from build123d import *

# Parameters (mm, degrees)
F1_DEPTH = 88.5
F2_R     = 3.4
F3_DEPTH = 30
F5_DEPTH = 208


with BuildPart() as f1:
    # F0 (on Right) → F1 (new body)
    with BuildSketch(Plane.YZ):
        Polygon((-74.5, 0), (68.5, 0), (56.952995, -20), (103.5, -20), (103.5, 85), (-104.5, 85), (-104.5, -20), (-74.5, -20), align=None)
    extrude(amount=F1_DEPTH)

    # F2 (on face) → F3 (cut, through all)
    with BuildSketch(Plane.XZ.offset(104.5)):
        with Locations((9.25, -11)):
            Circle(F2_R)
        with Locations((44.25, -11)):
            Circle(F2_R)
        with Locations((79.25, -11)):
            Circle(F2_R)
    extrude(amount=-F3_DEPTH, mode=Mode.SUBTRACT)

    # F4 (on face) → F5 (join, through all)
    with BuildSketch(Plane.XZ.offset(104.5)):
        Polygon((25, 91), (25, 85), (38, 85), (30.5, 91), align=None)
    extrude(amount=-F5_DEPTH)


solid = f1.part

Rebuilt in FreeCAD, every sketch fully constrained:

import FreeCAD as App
import Part
import Sketcher
Q = App.Units.Quantity


def add_polygon(sketch, points):
    """Adds a closed chain of lines whose ends are joined by coincident constraints."""
    first, n = sketch.GeometryCount, len(points)
    for a, b in zip(points, points[1:] + points[:1]):
        sketch.addGeometry(Part.LineSegment(App.Vector(*a, 0), App.Vector(*b, 0)), False)
    for i in range(n):
        sketch.addConstraint(Sketcher.Constraint("Coincident", first + i, 2, first + (i + 1) % n, 1))

doc = App.newDocument("Part")
body = doc.addObject("PartDesign::Body", "Body")

sketch1 = body.newObject("Sketcher::SketchObject", "Sketch")
sketch1.AttachmentSupport = (doc.getObject("YZ_Plane"), [""])
sketch1.MapMode = "FlatFace"
add_polygon(sketch1, [(-74.5, 0), (68.5, 0), (56.952995, -20), (103.5, -20), (103.5, 85), (-104.5, 85), (-104.5, -20), (-74.5, -20)])
sketch1.addConstraint([
    Sketcher.Constraint("Horizontal", 0),
    Sketcher.Constraint("Horizontal", 2),
    Sketcher.Constraint("Vertical", 3),
    Sketcher.Constraint("Horizontal", 4),
    Sketcher.Constraint("Vertical", 5),
    Sketcher.Constraint("Horizontal", 6),
    Sketcher.Constraint("Vertical", 7),
    Sketcher.Constraint("PointOnObject", 0, 2, -1),
    Sketcher.Constraint("Horizontal", 2, 2, 5, 2),
    Sketcher.Constraint("DistanceX", 0, 1, 0, 2, Q("143 mm")),
    Sketcher.Constraint("DistanceX", 4, 2, 4, 1, Q("208 mm")),
    Sketcher.Constraint("DistanceX", 6, 1, 6, 2, Q("30 mm")),
    Sketcher.Constraint("DistanceY", 3, 1, 3, 2, Q("105 mm")),
    Sketcher.Constraint("DistanceY", 7, 1, 7, 2, Q("20 mm")),
    Sketcher.Constraint("Angle", 1, Q("-119.999999 deg")),
    Sketcher.Constraint("DistanceX", -1, 1, 0, 2, Q("68.5 mm")),
])
pad1 = body.newObject("PartDesign::Pad", "Pad")
pad1.Profile = sketch1
pad1.Length = 88.5

sketch2 = body.newObject("Sketcher::SketchObject", "Sketch001")
sketch2.AttachmentSupport = (doc.getObject("XZ_Plane"), [""])
sketch2.MapMode = "FlatFace"
sketch2.AttachmentOffset = App.Placement(App.Vector(0, 0, 104.5), App.Rotation())
sketch2.addGeometry([
    Part.Circle(App.Vector(9.25, -11, 0), App.Vector(0, 0, 1), 3.4),
    Part.Circle(App.Vector(44.25, -11, 0), App.Vector(0, 0, 1), 3.4),
    Part.Circle(App.Vector(79.25, -11, 0), App.Vector(0, 0, 1), 3.4),
], False)
sketch2.addConstraint([
    Sketcher.Constraint("Equal", 0, 1),
    Sketcher.Constraint("Equal", 1, 2),
    Sketcher.Constraint("Horizontal", 0, 3, 1, 3),
    Sketcher.Constraint("Horizontal", 1, 3, 2, 3),
    Sketcher.Constraint("Diameter", 0, Q("6.8 mm")),
    Sketcher.Constraint("DistanceY", 0, 3, -1, 1, Q("11 mm")),
    Sketcher.Constraint("DistanceX", 0, 3, 1, 3, Q("35 mm")),
    Sketcher.Constraint("DistanceX", 1, 3, 2, 3, Q("35 mm")),
    Sketcher.Constraint("DistanceX", -1, 1, 0, 3, Q("9.25 mm")),
])
pocket1 = body.newObject("PartDesign::Pocket", "Pocket")
pocket1.Profile = sketch2
pocket1.Length = 30

sketch3 = body.newObject("Sketcher::SketchObject", "Sketch002")
sketch3.AttachmentSupport = (doc.getObject("XZ_Plane"), [""])
sketch3.MapMode = "FlatFace"
sketch3.AttachmentOffset = App.Placement(App.Vector(0, 0, 104.5), App.Rotation())
add_polygon(sketch3, [(25, 91), (25, 85), (38, 85), (30.5, 91)])
sketch3.addConstraint([
    Sketcher.Constraint("Vertical", 0),
    Sketcher.Constraint("Horizontal", 1),
    Sketcher.Constraint("Horizontal", 3),
    Sketcher.Constraint("DistanceX", 1, 1, 1, 2, Q("13 mm")),
    Sketcher.Constraint("DistanceY", 0, 2, 0, 1, Q("6 mm")),
    Sketcher.Constraint("DistanceX", 3, 2, 3, 1, Q("5.5 mm")),
    Sketcher.Constraint("DistanceX", -1, 1, 0, 2, Q("25 mm")),
    Sketcher.Constraint("DistanceY", -1, 1, 0, 2, Q("85 mm")),
])
pad2 = body.newObject("PartDesign::Pad", "Pad001")
pad2.Profile = sketch3
pad2.Length = 208
pad2.Reversed = True

doc.recompute()
